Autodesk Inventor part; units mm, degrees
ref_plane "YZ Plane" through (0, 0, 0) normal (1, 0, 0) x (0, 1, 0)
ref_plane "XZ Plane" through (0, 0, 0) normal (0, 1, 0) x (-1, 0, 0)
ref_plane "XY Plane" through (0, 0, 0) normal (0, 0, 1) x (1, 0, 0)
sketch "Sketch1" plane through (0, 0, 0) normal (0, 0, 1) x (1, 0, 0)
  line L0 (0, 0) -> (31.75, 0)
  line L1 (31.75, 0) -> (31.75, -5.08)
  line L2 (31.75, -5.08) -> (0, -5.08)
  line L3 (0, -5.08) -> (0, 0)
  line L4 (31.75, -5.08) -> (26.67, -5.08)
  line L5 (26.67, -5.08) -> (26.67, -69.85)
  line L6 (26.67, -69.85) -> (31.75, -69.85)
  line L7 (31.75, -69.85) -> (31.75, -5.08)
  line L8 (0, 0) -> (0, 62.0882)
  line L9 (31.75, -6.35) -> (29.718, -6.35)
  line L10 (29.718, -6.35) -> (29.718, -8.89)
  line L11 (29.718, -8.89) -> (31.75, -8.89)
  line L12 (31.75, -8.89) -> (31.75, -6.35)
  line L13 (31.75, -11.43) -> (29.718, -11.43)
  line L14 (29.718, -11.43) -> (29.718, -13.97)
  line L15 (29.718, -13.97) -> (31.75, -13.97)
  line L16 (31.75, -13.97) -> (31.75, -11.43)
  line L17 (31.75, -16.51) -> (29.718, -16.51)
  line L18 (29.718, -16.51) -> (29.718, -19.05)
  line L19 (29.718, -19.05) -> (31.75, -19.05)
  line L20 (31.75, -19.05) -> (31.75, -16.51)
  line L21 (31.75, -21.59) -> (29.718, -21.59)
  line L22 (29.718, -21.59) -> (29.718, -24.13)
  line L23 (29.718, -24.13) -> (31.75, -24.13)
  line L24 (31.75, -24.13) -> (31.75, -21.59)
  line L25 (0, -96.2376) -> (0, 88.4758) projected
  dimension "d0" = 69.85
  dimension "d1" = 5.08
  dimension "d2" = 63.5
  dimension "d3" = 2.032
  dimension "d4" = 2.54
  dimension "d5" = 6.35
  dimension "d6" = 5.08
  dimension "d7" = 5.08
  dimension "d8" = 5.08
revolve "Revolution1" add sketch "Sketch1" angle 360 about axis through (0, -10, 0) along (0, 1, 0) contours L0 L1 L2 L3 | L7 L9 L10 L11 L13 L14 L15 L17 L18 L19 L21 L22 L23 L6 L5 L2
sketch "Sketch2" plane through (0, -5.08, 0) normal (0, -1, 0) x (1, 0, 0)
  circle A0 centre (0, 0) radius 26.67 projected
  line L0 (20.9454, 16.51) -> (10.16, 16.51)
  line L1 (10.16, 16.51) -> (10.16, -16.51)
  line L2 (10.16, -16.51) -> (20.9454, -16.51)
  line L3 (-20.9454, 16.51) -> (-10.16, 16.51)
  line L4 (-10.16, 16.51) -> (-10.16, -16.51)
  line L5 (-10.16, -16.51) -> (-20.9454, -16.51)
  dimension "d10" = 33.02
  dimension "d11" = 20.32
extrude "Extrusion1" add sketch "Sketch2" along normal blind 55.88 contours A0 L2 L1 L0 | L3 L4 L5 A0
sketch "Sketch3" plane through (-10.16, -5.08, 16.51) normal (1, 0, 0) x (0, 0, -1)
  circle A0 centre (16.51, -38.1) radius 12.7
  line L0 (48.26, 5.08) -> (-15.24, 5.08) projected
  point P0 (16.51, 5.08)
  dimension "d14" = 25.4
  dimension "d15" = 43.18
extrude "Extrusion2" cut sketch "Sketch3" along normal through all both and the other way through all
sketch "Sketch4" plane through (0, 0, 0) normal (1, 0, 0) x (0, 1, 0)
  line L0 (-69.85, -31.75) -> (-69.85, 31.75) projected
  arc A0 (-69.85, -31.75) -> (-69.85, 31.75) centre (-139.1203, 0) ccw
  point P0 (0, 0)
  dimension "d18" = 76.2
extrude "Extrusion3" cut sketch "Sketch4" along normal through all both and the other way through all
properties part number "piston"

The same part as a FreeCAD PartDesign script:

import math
import FreeCAD as App
import Part
import Sketcher
from FreeCAD import Vector
Q = App.Units.Quantity

doc = App.newDocument("Part")
body = doc.addObject("PartDesign::Body", "Body")

# Sketch on XY plane
sketch1 = body.newObject("Sketcher::SketchObject", "Sketch")
sketch1.AttachmentSupport = (doc.getObject("XY_Plane"), [""])
sketch1.MapMode = "FlatFace"
sketch1.addGeometry([
    Part.LineSegment(Vector(31.8, 0, 0), Vector(0, 0, 0)),  # 0
    Part.LineSegment(Vector(0, 0, 0), Vector(0, -5.1, 0)),  # 1
    Part.LineSegment(Vector(0, -5.1, 0), Vector(26.7, -5.1, 0)),  # 2
    Part.LineSegment(Vector(26.7, -5.1, 0), Vector(26.7, -69.8, 0)),  # 3
    Part.LineSegment(Vector(26.7, -69.8, 0), Vector(31.8, -69.8, 0)),  # 4
    Part.LineSegment(Vector(31.8, -69.8, 0), Vector(31.8, -24.1, 0)),  # 5
    Part.LineSegment(Vector(31.8, -24.1, 0), Vector(29.7, -24.1, 0)),  # 6
    Part.LineSegment(Vector(29.7, -24.1, 0), Vector(29.7, -21.6, 0)),  # 7
    Part.LineSegment(Vector(29.7, -21.6, 0), Vector(31.8, -21.6, 0)),  # 8
    Part.LineSegment(Vector(31.8, -21.6, 0), Vector(31.8, -19.1, 0)),  # 9
    Part.LineSegment(Vector(31.8, -19.1, 0), Vector(29.7, -19.1, 0)),  # 10
    Part.LineSegment(Vector(29.7, -19.1, 0), Vector(29.7, -16.5, 0)),  # 11
    Part.LineSegment(Vector(29.7, -16.5, 0), Vector(31.8, -16.5, 0)),  # 12
    Part.LineSegment(Vector(31.8, -16.5, 0), Vector(31.8, -14, 0)),  # 13
    Part.LineSegment(Vector(31.8, -14, 0), Vector(29.7, -14, 0)),  # 14
    Part.LineSegment(Vector(29.7, -14, 0), Vector(29.7, -11.4, 0)),  # 15
    Part.LineSegment(Vector(29.7, -11.4, 0), Vector(31.8, -11.4, 0)),  # 16
    Part.LineSegment(Vector(31.8, -11.4, 0), Vector(31.8, -8.9, 0)),  # 17
    Part.LineSegment(Vector(31.8, -8.9, 0), Vector(29.7, -8.9, 0)),  # 18
    Part.LineSegment(Vector(29.7, -8.9, 0), Vector(29.7, -6.3, 0)),  # 19
    Part.LineSegment(Vector(29.7, -6.3, 0), Vector(31.8, -6.3, 0)),  # 20
    Part.LineSegment(Vector(31.8, -6.3, 0), Vector(31.8, 0, 0)),  # 21
], False)
sketch1.addConstraint([
    Sketcher.Constraint("Coincident", 0, 2, 1, 1),
    Sketcher.Constraint("Coincident", 1, 2, 2, 1),
    Sketcher.Constraint("Coincident", 2, 2, 3, 1),
    Sketcher.Constraint("Coincident", 3, 2, 4, 1),
    Sketcher.Constraint("Coincident", 4, 2, 5, 1),
    Sketcher.Constraint("Coincident", 5, 2, 6, 1),
    Sketcher.Constraint("Coincident", 6, 2, 7, 1),
    Sketcher.Constraint("Coincident", 7, 2, 8, 1),
    Sketcher.Constraint("Coincident", 8, 2, 9, 1),
    Sketcher.Constraint("Coincident", 9, 2, 10, 1),
    Sketcher.Constraint("Coincident", 10, 2, 11, 1),
    Sketcher.Constraint("Coincident", 11, 2, 12, 1),
    Sketcher.Constraint("Coincident", 12, 2, 13, 1),
    Sketcher.Constraint("Coincident", 13, 2, 14, 1),
    Sketcher.Constraint("Coincident", 14, 2, 15, 1),
    Sketcher.Constraint("Coincident", 15, 2, 16, 1),
    Sketcher.Constraint("Coincident", 16, 2, 17, 1),
    Sketcher.Constraint("Coincident", 17, 2, 18, 1),
    Sketcher.Constraint("Coincident", 18, 2, 19, 1),
    Sketcher.Constraint("Coincident", 19, 2, 20, 1),
    Sketcher.Constraint("Coincident", 20, 2, 21, 1),
    Sketcher.Constraint("Coincident", 21, 2, 0, 1),
    Sketcher.Constraint("Horizontal", 0),
    Sketcher.Constraint("Vertical", 1),
    Sketcher.Constraint("Horizontal", 2),
    Sketcher.Constraint("Vertical", 3),
    Sketcher.Constraint("Horizontal", 4),
    Sketcher.Constraint("Vertical", 5),
    Sketcher.Constraint("Horizontal", 6),
    Sketcher.Constraint("Vertical", 7),
    Sketcher.Constraint("Horizontal", 8),
    Sketcher.Constraint("Vertical", 9),
    Sketcher.Constraint("Horizontal", 10),
    Sketcher.Constraint("Vertical", 11),
    Sketcher.Constraint("Horizontal", 12),
    Sketcher.Constraint("Vertical", 13),
    Sketcher.Constraint("Horizontal", 14),
    Sketcher.Constraint("Vertical", 15),
    Sketcher.Constraint("Horizontal", 16),
    Sketcher.Constraint("Vertical", 17),
    Sketcher.Constraint("Horizontal", 18),
    Sketcher.Constraint("Vertical", 19),
    Sketcher.Constraint("Horizontal", 20),
    Sketcher.Constraint("Vertical", 21),
    Sketcher.Constraint("Coincident", 0, 2, -1, 1),
    Sketcher.Constraint("Vertical", 5, 2, 8, 2),
    Sketcher.Constraint("Vertical", 7, 2, 10, 2),
    Sketcher.Constraint("Vertical", 9, 2, 12, 2),
    Sketcher.Constraint("Vertical", 11, 2, 14, 2),
    Sketcher.Constraint("Vertical", 13, 2, 16, 2),
    Sketcher.Constraint("Vertical", 15, 2, 18, 2),
    Sketcher.Constraint("Vertical", 17, 2, 20, 2),
    Sketcher.Constraint("Equal", 4, 1),
    Sketcher.Constraint("Equal", 7, 9),
    Sketcher.Constraint("Equal", 9, 11),
    Sketcher.Constraint("Equal", 11, 13),
    Sketcher.Constraint("Equal", 13, 15),
    Sketcher.Constraint("Equal", 15, 17),
    Sketcher.Constraint("Equal", 17, 19),
    Sketcher.Constraint("DistanceX", 4, 1, 4, 2, Q("0.2 in")),
    Sketcher.Constraint("DistanceY", 7, 1, 7, 2, Q("0.1 in")),
    Sketcher.Constraint("DistanceX", 6, 2, 6, 1, Q("0.08 in")),
    Sketcher.Constraint("DistanceY", 21, 1, 21, 2, Q("0.25 in")),
    Sketcher.Constraint("DistanceY", 3, 2, -1, 1, Q("2.75 in")),
    Sketcher.Constraint("DistanceX", 0, 2, 0, 1, Q("1.25 in")),
])
revolution = body.newObject("PartDesign::Revolution", "Revolution")
revolution.Profile = sketch1
revolution.ReferenceAxis = (sketch1, ["V_Axis"])
revolution.Angle = 360

# Sketch on XZ plane
sketch2 = body.newObject("Sketcher::SketchObject", "Sketch001")
sketch2.AttachmentSupport = (doc.getObject("XZ_Plane"), [""])
sketch2.MapMode = "FlatFace"
sketch2.AttachmentOffset = App.Placement(Vector(0, 0, 0.2 * 25.4), App.Rotation())
sketch2.addGeometry([
    Part.ArcOfCircle(Part.Circle(Vector(0, 0, 0), Vector(0, 0, 1), 27), math.radians(-38), math.radians(38)),  # 0
    Part.LineSegment(Vector(21, 17, 0), Vector(10, 17, 0)),  # 1
    Part.LineSegment(Vector(10, 17, 0), Vector(10, -17, 0)),  # 2
    Part.LineSegment(Vector(10, -17, 0), Vector(21, -17, 0)),  # 3
    Part.LineSegment(Vector(-10, 17, 0), Vector(-21, 17, 0)),  # 4
    Part.ArcOfCircle(Part.Circle(Vector(0, 0, 0), Vector(0, 0, 1), 27), math.radians(142), math.radians(218)),  # 5
    Part.LineSegment(Vector(-21, -17, 0), Vector(-10, -17, 0)),  # 6
    Part.LineSegment(Vector(-10, -17, 0), Vector(-10, 17, 0)),  # 7
], False)
sketch2.addConstraint([
    Sketcher.Constraint("Coincident", 0, 2, 1, 1),
    Sketcher.Constraint("Coincident", 1, 2, 2, 1),
    Sketcher.Constraint("Coincident", 2, 2, 3, 1),
    Sketcher.Constraint("Coincident", 3, 2, 0, 1),
    Sketcher.Constraint("Coincident", 4, 2, 5, 1),
    Sketcher.Constraint("Coincident", 5, 2, 6, 1),
    Sketcher.Constraint("Coincident", 6, 2, 7, 1),
    Sketcher.Constraint("Coincident", 7, 2, 4, 1),
    Sketcher.Constraint("Horizontal", 1),
    Sketcher.Constraint("Vertical", 2),
    Sketcher.Constraint("Horizontal", 3),
    Sketcher.Constraint("Horizontal", 4),
    Sketcher.Constraint("Horizontal", 6),
    Sketcher.Constraint("Vertical", 7),
    Sketcher.Constraint("Coincident", 0, 3, -1, 1),
    Sketcher.Constraint("Coincident", 5, 3, -1, 1),
    Sketcher.Constraint("Equal", 0, 5),
    Sketcher.Constraint("Symmetric", 1, 2, 6, 2, -1, 1),
    Sketcher.Constraint("Horizontal", 1, 2, 4, 2),
    Sketcher.Constraint("Horizontal", 3, 2, 5, 2),
    Sketcher.Constraint("DistanceY", 2, 2, 2, 1, Q("1.3 in")),
    Sketcher.Constraint("DistanceX", 6, 2, 2, 2, Q("0.8 in")),
    Sketcher.Constraint("Radius", 0, Q("1.05 in")),
])
pad1 = body.newObject("PartDesign::Pad", "Pad")
pad1.Profile = sketch2
pad1.Length = Q("2.2 in")

# Sketch on YZ plane
sketch3 = body.newObject("Sketcher::SketchObject", "Sketch002")
sketch3.AttachmentSupport = (doc.getObject("YZ_Plane"), [""])
sketch3.MapMode = "FlatFace"
sketch3.AttachmentOffset = App.Placement(Vector(0, 0, -0.4 * 25.4), App.Rotation())
sketch3.addGeometry(Part.Circle(Vector(-43, 0, 0), Vector(0, 0, 1), 13), False)
sketch3.addConstraint([
    Sketcher.Constraint("PointOnObject", 0, 3, -1),
    Sketcher.Constraint("Diameter", 0, Q("1 in")),
    Sketcher.Constraint("DistanceX", 0, 3, -1, 1, Q("1.7 in")),
])
pocket1 = body.newObject("PartDesign::Pocket", "Pocket")
pocket1.Profile = sketch3
pocket1.Type = "ThroughAll"
pocket1.Midplane = True

# Sketch on YZ plane
sketch4 = body.newObject("Sketcher::SketchObject", "Sketch003")
sketch4.AttachmentSupport = (doc.getObject("YZ_Plane"), [""])
sketch4.MapMode = "FlatFace"
sketch4.addGeometry([
    Part.LineSegment(Vector(-70, 32, 0), Vector(-70, -32, 0)),
    Part.ArcOfCircle(Part.Circle(Vector(-139, 0, 0), Vector(0, 0, 1), 76), math.radians(-25), math.radians(25)),
], False)
sketch4.addConstraint([
    Sketcher.Constraint("Coincident", 0, 1, 1, 2),
    Sketcher.Constraint("Coincident", 1, 1, 0, 2),
    Sketcher.Constraint("Vertical", 0),
    Sketcher.Constraint("PointOnObject", 1, 3, -1),
    Sketcher.Constraint("Radius", 1, Q("3 in")),
    Sketcher.Constraint("DistanceY", 0, 2, 0, 1, Q("2.5 in")),
    Sketcher.Constraint("DistanceX", 0, 1, -1, 1, Q("2.75 in")),
])
pocket2 = body.newObject("PartDesign::Pocket", "Pocket001")
pocket2.Profile = sketch4
pocket2.Type = "ThroughAll"
pocket2.Midplane = True

doc.recompute()
